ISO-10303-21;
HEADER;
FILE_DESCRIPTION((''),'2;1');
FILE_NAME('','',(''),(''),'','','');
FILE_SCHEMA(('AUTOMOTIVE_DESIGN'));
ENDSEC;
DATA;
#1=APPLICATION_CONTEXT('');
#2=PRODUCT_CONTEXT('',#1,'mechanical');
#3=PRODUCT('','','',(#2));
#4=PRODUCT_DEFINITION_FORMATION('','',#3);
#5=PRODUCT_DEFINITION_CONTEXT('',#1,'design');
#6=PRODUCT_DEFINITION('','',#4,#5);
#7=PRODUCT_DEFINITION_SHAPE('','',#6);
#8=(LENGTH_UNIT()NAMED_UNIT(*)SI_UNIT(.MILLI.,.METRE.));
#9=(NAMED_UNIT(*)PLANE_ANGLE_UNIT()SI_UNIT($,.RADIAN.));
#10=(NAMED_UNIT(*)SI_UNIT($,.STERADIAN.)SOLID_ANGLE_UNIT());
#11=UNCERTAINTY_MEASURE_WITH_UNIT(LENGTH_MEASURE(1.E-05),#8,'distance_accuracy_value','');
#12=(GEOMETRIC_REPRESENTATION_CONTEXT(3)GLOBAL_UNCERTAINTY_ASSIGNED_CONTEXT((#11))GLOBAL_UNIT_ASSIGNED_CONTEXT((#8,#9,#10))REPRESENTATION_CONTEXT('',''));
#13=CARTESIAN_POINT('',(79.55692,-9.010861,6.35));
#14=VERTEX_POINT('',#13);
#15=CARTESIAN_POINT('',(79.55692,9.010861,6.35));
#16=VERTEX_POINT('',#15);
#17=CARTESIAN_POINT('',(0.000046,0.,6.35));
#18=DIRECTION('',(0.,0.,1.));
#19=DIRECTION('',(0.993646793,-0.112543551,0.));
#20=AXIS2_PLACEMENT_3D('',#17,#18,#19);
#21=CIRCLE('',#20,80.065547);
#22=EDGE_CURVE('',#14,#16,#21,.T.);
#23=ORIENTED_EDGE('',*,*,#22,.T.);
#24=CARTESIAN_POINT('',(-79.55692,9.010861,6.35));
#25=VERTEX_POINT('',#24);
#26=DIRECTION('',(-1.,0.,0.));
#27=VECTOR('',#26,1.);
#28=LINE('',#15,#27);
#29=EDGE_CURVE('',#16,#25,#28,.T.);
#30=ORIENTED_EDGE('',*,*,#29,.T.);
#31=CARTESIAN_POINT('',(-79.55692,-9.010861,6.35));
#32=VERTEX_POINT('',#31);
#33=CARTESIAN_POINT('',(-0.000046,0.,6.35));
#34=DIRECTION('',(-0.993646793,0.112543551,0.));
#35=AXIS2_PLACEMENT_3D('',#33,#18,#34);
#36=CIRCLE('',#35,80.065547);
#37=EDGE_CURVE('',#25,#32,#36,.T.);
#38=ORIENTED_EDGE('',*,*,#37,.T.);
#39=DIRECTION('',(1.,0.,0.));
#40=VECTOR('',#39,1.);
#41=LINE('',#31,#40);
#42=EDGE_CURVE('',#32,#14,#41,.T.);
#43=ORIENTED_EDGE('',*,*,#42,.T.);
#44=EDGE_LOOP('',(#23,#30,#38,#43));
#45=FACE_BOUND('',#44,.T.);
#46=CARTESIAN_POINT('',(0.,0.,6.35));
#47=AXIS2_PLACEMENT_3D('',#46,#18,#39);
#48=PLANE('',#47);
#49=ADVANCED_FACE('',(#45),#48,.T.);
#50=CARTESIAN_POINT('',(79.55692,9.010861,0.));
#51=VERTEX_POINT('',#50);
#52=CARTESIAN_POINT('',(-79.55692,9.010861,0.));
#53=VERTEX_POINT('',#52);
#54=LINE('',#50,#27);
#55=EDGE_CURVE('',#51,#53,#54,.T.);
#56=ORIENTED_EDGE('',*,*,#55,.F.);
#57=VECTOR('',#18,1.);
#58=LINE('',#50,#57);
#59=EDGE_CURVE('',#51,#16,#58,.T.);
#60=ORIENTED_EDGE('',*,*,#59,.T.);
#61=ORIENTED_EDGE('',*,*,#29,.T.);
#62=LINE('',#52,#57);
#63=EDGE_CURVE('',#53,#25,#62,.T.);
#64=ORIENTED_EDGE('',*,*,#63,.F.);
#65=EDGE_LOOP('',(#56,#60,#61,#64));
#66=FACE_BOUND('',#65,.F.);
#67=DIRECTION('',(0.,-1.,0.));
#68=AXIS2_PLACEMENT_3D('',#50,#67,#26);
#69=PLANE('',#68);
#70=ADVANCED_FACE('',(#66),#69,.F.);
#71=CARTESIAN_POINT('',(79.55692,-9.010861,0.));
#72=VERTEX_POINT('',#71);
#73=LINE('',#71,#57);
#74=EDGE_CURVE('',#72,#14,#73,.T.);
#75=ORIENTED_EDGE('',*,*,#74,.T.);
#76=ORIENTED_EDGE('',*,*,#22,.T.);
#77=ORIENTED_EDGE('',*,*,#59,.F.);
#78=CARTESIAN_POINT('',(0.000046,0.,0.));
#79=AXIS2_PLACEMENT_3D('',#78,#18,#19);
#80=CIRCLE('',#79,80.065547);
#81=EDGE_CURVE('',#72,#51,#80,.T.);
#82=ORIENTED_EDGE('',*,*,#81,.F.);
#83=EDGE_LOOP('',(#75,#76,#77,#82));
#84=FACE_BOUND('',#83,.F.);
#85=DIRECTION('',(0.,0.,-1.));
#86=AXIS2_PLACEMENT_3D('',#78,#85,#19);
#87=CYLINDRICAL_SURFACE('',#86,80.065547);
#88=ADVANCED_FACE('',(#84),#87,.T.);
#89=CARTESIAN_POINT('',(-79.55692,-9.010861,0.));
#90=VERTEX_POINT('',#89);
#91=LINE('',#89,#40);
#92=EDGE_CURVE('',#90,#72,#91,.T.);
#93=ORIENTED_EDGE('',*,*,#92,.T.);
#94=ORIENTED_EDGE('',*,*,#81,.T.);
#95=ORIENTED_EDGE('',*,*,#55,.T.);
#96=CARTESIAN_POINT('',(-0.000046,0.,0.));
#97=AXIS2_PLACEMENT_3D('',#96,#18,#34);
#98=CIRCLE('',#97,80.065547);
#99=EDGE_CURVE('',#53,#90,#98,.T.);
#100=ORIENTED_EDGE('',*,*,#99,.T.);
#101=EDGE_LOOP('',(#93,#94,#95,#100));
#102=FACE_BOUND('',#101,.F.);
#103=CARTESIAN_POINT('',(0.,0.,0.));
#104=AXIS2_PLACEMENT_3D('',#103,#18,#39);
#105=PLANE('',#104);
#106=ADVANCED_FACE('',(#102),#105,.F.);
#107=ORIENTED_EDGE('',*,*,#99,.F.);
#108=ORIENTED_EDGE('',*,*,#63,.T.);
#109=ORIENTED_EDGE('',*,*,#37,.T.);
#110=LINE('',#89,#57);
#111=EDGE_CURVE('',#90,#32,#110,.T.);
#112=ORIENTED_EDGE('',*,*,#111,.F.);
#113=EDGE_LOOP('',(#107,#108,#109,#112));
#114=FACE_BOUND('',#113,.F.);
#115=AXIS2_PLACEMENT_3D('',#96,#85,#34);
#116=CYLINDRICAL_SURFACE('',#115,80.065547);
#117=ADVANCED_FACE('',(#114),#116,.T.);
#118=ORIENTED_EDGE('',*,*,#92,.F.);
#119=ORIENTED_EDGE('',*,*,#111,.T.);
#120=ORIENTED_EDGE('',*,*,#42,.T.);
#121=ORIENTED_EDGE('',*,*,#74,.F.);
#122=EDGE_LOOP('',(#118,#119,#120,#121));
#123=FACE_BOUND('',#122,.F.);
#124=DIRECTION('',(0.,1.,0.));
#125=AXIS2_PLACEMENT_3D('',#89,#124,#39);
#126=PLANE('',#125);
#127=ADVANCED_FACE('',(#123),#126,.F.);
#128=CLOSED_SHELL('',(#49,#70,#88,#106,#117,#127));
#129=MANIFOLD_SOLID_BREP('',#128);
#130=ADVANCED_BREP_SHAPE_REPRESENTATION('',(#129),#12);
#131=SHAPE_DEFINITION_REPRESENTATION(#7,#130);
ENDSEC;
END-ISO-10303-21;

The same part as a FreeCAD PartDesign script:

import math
import FreeCAD as App
import Part
import Sketcher

doc = App.newDocument("Part")
params = doc.addObject("Spreadsheet::Sheet", "Params")
for row, (alias, value) in enumerate([
    ("pad1_length", "0.25 in"),
], start=1):
    params.set(f"A{row}", alias)
    params.set(f"B{row}", "=" + value)
    params.setAlias(f"B{row}", alias)

body = doc.addObject("PartDesign::Body", "Body")

# Sketch on XY plane
sketch1 = body.newObject("Sketcher::SketchObject", "Sketch")
sketch1.AttachmentSupport = (doc.getObject("XY_Plane"), [""])
sketch1.MapMode = "FlatFace"
sketch1.addGeometry([
    Part.ArcOfCircle(Part.Circle(App.Vector(-0.000046, 0, 0), App.Vector(0, 0, 1), 80.065547), math.radians(173.538039), math.radians(186.461961)),
    Part.LineSegment(App.Vector(-79.55692, -9.010861, 0), App.Vector(79.55692, -9.010861, 0)),
    Part.ArcOfCircle(Part.Circle(App.Vector(0.000046, 0, 0), App.Vector(0, 0, 1), 80.065547), math.radians(-6.461961), math.radians(6.461961)),
    Part.LineSegment(App.Vector(79.55692, 9.010861, 0), App.Vector(-79.55692, 9.010861, 0)),
], False)
sketch1.addConstraint([
    Sketcher.Constraint("Coincident", 0, 2, 1, 1),
    Sketcher.Constraint("Coincident", 1, 2, 2, 1),
    Sketcher.Constraint("Coincident", 2, 2, 3, 1),
    Sketcher.Constraint("Coincident", 3, 2, 0, 1),
    Sketcher.Constraint("Horizontal", 1),
    Sketcher.Constraint("Horizontal", 3),
    Sketcher.Constraint("Equal", 0, 2),
    Sketcher.Constraint("Symmetric", 0, 3, 2, 3, -1, 1),
    Sketcher.Constraint("Symmetric", 1, 2, 2, 2, -1),
    Sketcher.Constraint("Radius", 0, 80.065547),
    Sketcher.Constraint("DistanceX", 1, 1, 1, 2, 159.11384),
    Sketcher.Constraint("DistanceY", 0, 2, -1, 1, 9.010861),
])
pad1 = body.newObject("PartDesign::Pad", "Pad")
pad1.Profile = sketch1
pad1.setExpression("Length", "Params.pad1_length")

doc.recompute()
